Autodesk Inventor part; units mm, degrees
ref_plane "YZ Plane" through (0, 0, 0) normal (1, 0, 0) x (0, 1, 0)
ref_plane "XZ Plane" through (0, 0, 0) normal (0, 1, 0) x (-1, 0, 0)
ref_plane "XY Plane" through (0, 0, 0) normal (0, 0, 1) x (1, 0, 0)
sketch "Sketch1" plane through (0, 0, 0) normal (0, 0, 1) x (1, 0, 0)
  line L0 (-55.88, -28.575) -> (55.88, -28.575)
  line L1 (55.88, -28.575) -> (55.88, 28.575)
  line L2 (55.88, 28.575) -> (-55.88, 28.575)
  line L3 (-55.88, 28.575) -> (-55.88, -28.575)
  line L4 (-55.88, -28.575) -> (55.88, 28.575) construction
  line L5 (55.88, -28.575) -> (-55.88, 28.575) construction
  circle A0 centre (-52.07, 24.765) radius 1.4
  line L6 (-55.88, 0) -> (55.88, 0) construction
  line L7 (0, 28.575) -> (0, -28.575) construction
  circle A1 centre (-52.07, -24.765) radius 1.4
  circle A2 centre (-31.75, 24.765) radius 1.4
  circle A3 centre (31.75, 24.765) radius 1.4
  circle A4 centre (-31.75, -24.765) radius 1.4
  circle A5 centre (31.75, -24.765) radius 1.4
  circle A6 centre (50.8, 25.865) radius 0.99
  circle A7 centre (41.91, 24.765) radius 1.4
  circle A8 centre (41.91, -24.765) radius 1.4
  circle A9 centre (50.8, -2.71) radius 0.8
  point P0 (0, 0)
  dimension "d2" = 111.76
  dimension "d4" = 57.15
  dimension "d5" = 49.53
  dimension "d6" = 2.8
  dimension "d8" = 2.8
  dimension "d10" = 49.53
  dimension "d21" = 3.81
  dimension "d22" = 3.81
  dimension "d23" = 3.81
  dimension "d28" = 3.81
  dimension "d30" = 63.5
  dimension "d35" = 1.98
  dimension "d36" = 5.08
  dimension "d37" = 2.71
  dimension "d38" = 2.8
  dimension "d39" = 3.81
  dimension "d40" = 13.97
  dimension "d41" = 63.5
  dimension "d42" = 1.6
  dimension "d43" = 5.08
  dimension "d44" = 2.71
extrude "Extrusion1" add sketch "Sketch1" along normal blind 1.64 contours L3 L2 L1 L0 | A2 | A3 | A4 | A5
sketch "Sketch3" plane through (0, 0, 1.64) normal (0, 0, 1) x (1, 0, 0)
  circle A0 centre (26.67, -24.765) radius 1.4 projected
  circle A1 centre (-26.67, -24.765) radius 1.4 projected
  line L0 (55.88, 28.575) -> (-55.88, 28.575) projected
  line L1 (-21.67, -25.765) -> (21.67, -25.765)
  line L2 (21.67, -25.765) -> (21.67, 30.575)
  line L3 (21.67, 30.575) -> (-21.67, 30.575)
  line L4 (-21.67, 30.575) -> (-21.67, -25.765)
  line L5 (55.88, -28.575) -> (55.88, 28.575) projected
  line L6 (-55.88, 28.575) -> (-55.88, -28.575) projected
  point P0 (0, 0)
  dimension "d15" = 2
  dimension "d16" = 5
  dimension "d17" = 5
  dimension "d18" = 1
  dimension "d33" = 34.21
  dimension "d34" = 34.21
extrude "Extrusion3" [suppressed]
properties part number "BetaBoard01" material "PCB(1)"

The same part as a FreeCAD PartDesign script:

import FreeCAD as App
import Part
import Sketcher
from FreeCAD import Vector
Q = App.Units.Quantity


def add_polygon(sketch, points):
    """Adds a closed chain of lines whose ends are joined by coincident constraints."""
    first, n = sketch.GeometryCount, len(points)
    for a, b in zip(points, points[1:] + points[:1]):
        sketch.addGeometry(Part.LineSegment(App.Vector(*a, 0), App.Vector(*b, 0)), False)
    for i in range(n):
        sketch.addConstraint(Sketcher.Constraint("Coincident", first + i, 2, first + (i + 1) % n, 1))

doc = App.newDocument("Part")
body = doc.addObject("PartDesign::Body", "Body")

# Sketch on XY plane
sketch1 = body.newObject("Sketcher::SketchObject", "Sketch")
sketch1.AttachmentSupport = (doc.getObject("XY_Plane"), [""])
sketch1.MapMode = "FlatFace"
add_polygon(sketch1, [(-55.88, 28.575), (-55.88, -28.575), (55.88, -28.575), (55.88, 28.575)])  # lines 0-3
sketch1.addGeometry(Part.Circle(Vector(-52.07, -24.765, 0), Vector(0, 0, 1), 1.4), False)  # 4
sketch1.addGeometry(Part.Circle(Vector(41.91, -24.765, 0), Vector(0, 0, 1), 1.4), False)  # 5
sketch1.addGeometry(Part.Circle(Vector(50.8, -2.71, 0), Vector(0, 0, 1), 0.8), False)  # 6
sketch1.addGeometry(Part.Circle(Vector(-52.07, 24.765, 0), Vector(0, 0, 1), 1.4), False)  # 7
sketch1.addGeometry(Part.Circle(Vector(41.91, 24.765, 0), Vector(0, 0, 1), 1.4), False)  # 8
sketch1.addGeometry(Part.Circle(Vector(50.8, 25.865, 0), Vector(0, 0, 1), 0.99), False)  # 9
sketch1.addConstraint(Sketcher.Constraint("Vertical", 0))
sketch1.addConstraint(Sketcher.Constraint("Horizontal", 1))
sketch1.addConstraint(Sketcher.Constraint("Vertical", 2))
sketch1.addConstraint(Sketcher.Constraint("Horizontal", 3))
sketch1.addConstraint(Sketcher.Constraint("Equal", 4, 5))
sketch1.addConstraint(Sketcher.Constraint("Equal", 5, 7))
sketch1.addConstraint(Sketcher.Constraint("Equal", 7, 8))
sketch1.addConstraint(Sketcher.Constraint("Symmetric", 0, 2, 2, 2, -1, 1))
sketch1.addConstraint(Sketcher.Constraint("Symmetric", 4, 3, 7, 3, -1))
sketch1.addConstraint(Sketcher.Constraint("Symmetric", 5, 3, 8, 3, -1))
sketch1.addConstraint(Sketcher.Constraint("Horizontal", 4, 3, 5, 3))
sketch1.addConstraint(Sketcher.Constraint("Vertical", 6, 3, 9, 3))
sketch1.addConstraint(Sketcher.Constraint("Diameter", 6, Q("0.063 in")))
sketch1.addConstraint(Sketcher.Constraint("DistanceX", 1, 1, 1, 2, Q("4.4 in")))
sketch1.addConstraint(Sketcher.Constraint("DistanceY", 0, 2, 0, 1, Q("2.25 in")))
sketch1.addConstraint(Sketcher.Constraint("DistanceX", 6, 3, 1, 2, Q("0.2 in")))
sketch1.addConstraint(Sketcher.Constraint("Diameter", 4, 2.8))
sketch1.addConstraint(Sketcher.Constraint("Diameter", 9, 1.98))
sketch1.addConstraint(Sketcher.Constraint("DistanceY", 4, 3, 7, 3, Q("1.95 in")))
sketch1.addConstraint(Sketcher.Constraint("DistanceX", 0, 2, 4, 3, Q("0.15 in")))
sketch1.addConstraint(Sketcher.Constraint("DistanceX", 5, 3, 1, 2, Q("0.55 in")))
sketch1.addConstraint(Sketcher.Constraint("DistanceY", 6, 3, -1, 1, Q("0.1067 in")))
sketch1.addConstraint(Sketcher.Constraint("DistanceY", 9, 3, 2, 2, Q("0.1067 in")))
pad1 = body.newObject("PartDesign::Pad", "Pad")
pad1.Profile = sketch1
pad1.Length = 1.64

doc.recompute()
